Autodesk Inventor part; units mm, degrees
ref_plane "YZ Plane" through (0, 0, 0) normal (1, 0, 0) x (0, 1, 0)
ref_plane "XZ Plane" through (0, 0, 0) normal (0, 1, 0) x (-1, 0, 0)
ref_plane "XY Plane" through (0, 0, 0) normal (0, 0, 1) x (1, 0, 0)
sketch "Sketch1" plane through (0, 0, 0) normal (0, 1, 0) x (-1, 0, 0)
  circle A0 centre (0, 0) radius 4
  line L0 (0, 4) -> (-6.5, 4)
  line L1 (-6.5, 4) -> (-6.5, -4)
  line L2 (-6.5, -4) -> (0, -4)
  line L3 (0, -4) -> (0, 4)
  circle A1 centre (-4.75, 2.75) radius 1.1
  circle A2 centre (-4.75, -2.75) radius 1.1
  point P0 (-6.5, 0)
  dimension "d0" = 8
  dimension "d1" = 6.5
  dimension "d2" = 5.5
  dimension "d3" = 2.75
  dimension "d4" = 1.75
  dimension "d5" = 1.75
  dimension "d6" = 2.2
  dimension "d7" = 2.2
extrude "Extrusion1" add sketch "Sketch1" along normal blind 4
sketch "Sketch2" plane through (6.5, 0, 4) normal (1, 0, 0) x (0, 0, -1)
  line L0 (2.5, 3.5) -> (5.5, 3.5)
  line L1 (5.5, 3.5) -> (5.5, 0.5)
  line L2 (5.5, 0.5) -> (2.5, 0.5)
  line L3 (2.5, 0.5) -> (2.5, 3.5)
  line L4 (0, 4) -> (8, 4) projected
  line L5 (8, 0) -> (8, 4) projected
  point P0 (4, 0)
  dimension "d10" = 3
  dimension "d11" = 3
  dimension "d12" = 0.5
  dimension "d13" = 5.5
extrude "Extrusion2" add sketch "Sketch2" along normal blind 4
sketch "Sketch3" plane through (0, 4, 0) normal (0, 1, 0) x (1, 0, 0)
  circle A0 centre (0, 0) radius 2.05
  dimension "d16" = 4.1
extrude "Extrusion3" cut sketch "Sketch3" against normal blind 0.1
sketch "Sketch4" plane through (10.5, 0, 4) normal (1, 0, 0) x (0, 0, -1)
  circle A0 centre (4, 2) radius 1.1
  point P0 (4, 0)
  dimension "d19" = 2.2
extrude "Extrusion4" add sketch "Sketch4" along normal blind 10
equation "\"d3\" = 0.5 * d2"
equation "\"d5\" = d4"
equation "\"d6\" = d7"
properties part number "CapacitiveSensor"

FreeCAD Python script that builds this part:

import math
import FreeCAD as App
import Part
import Sketcher

V = App.Vector
Q = App.Units.Quantity

doc = App.newDocument("Part")
params = doc.addObject("Spreadsheet::Sheet", "Params")
for row, (alias, value) in enumerate([
    ("sketch1_radius", "4 mm"),
    ("sketch1_diameter", "2.2 mm"),
    ("sketch1_width", "6.5 mm"),
    ("pad1_length", "4 mm"),
    ("sketch2_width", "3 mm"),
    ("pad2_length", "4 mm"),
    ("sketch3_diameter", "4.1 mm"),
    ("pocket1_length", "0.1 mm"),
    ("sketch4_diameter", "2.2 mm"),
    ("pad3_length", "10 mm"),
], start=1):
    params.set(f"A{row}", alias)
    params.set(f"B{row}", "=" + value)
    params.setAlias(f"B{row}", alias)

body = doc.addObject("PartDesign::Body", "Body")

# Sketch on XZ plane
sketch1 = doc.addObject("Sketcher::SketchObject", "Sketch")
body.addObject(sketch1)
sketch1.AttachmentSupport = (doc.XZ_Plane, [""])
sketch1.MapMode = "FlatFace"
sketch1.addGeometry([
    Part.ArcOfCircle(Part.Circle(V(0, 0, 0), V(0, 0, 1), 4), math.radians(90), math.radians(270)),  # 0
    Part.LineSegment(V(0, 4, 0), V(6.5, 4, 0)),  # 1
    Part.LineSegment(V(6.5, 4, 0), V(6.5, -4, 0)),  # 2
    Part.LineSegment(V(6.5, -4, 0), V(0, -4, 0)),  # 3
    Part.Circle(V(4.8, 2.8, 0), V(0, 0, 1), 1.1),  # 4
    Part.Circle(V(4.8, -2.8, 0), V(0, 0, 1), 1.1),  # 5
], False)
sketch1.addConstraint([
    Sketcher.Constraint("Tangent", 0, 1, 1, 1),
    Sketcher.Constraint("Coincident", 1, 2, 2, 1),
    Sketcher.Constraint("Coincident", 2, 2, 3, 1),
    Sketcher.Constraint("Tangent", 3, 2, 0, 2),
    Sketcher.Constraint("Horizontal", 1),
    Sketcher.Constraint("Vertical", 2),
    Sketcher.Constraint("Horizontal", 3),
    Sketcher.Constraint("Coincident", 0, 3, -1, 1),
    Sketcher.Constraint("Equal", 4, 5),
    Sketcher.Constraint("Symmetric", 4, 3, 5, 3, -1),
    Sketcher.Constraint("Radius", 0, Q("4 mm")),
    Sketcher.Constraint("Diameter", 4, Q("2.2 mm")),
    Sketcher.Constraint("DistanceX", 1, 1, 1, 2, Q("6.5 mm")),
    Sketcher.Constraint("DistanceY", 5, 3, 4, 3, Q("5.5 mm")),
    Sketcher.Constraint("DistanceX", 4, 3, 1, 2, Q("1.75 mm")),
])
sketch1.setExpression("Constraints[10]", "Params.sketch1_radius")
sketch1.setExpression("Constraints[11]", "Params.sketch1_diameter")
sketch1.setExpression("Constraints[12]", "Params.sketch1_width")
pad1 = doc.addObject("PartDesign::Pad", "Pad")
body.addObject(pad1)
pad1.Profile = sketch1
pad1.setExpression("Length", "Params.pad1_length")
pad1.Reversed = True

# Sketch on YZ plane
sketch2 = doc.addObject("Sketcher::SketchObject", "Sketch001")
body.addObject(sketch2)
sketch2.AttachmentSupport = (doc.YZ_Plane, [""])
sketch2.MapMode = "FlatFace"
sketch2.AttachmentOffset = App.Placement(V(0, 0, 6.5), App.Rotation())
sketch2.addGeometry([
    Part.LineSegment(V(3.5, -1.5, 0), V(3.5, 1.5, 0)),
    Part.LineSegment(V(3.5, 1.5, 0), V(0.5, 1.5, 0)),
    Part.LineSegment(V(0.5, 1.5, 0), V(0.5, -1.5, 0)),
    Part.LineSegment(V(0.5, -1.5, 0), V(3.5, -1.5, 0)),
], False)
sketch2.addConstraint([
    Sketcher.Constraint("Coincident", 0, 2, 1, 1),
    Sketcher.Constraint("Coincident", 1, 2, 2, 1),
    Sketcher.Constraint("Coincident", 2, 2, 3, 1),
    Sketcher.Constraint("Coincident", 3, 2, 0, 1),
    Sketcher.Constraint("Vertical", 0),
    Sketcher.Constraint("Horizontal", 1),
    Sketcher.Constraint("Vertical", 2),
    Sketcher.Constraint("Horizontal", 3),
    Sketcher.Constraint("Equal", 3, 0),
    Sketcher.Constraint("DistanceX", 1, 2, 1, 1, Q("3 mm")),
    Sketcher.Constraint("DistanceX", -1, 1, 1, 2, Q("0.5 mm")),
    Sketcher.Constraint("DistanceY", -1, 1, 0, 2, Q("1.5 mm")),
])
sketch2.setExpression("Constraints[9]", "Params.sketch2_width")
pad2 = doc.addObject("PartDesign::Pad", "Pad001")
body.addObject(pad2)
pad2.Profile = sketch2
pad2.setExpression("Length", "Params.pad2_length")

# Sketch on XZ plane
sketch3 = doc.addObject("Sketcher::SketchObject", "Sketch002")
body.addObject(sketch3)
sketch3.AttachmentSupport = (doc.XZ_Plane, [""])
sketch3.MapMode = "FlatFace"
sketch3.AttachmentOffset = App.Placement(V(0, 0, -4), App.Rotation())
sketch3.addGeometry(Part.Circle(V(0, 0, 0), V(0, 0, 1), 2), False)
sketch3.addConstraint([
    Sketcher.Constraint("Coincident", 0, 3, -1, 1),
    Sketcher.Constraint("Diameter", 0, Q("4.1 mm")),
])
sketch3.setExpression("Constraints[1]", "Params.sketch3_diameter")
pocket1 = doc.addObject("PartDesign::Pocket", "Pocket")
body.addObject(pocket1)
pocket1.Profile = sketch3
pocket1.setExpression("Length", "Params.pocket1_length")
pocket1.Reversed = True

# Sketch on YZ plane
sketch4 = doc.addObject("Sketcher::SketchObject", "Sketch003")
body.addObject(sketch4)
sketch4.AttachmentSupport = (doc.YZ_Plane, [""])
sketch4.MapMode = "FlatFace"
sketch4.AttachmentOffset = App.Placement(V(0, 0, 10.5), App.Rotation())
sketch4.addGeometry(Part.Circle(V(2, 0, 0), V(0, 0, 1), 1.1), False)
sketch4.addConstraint([
    Sketcher.Constraint("PointOnObject", 0, 3, -1),
    Sketcher.Constraint("Diameter", 0, Q("2.2 mm")),
    Sketcher.Constraint("DistanceX", -1, 1, 0, 3, Q("2 mm")),
])
sketch4.setExpression("Constraints[1]", "Params.sketch4_diameter")
pad3 = doc.addObject("PartDesign::Pad", "Pad002")
body.addObject(pad3)
pad3.Profile = sketch4
pad3.setExpression("Length", "Params.pad3_length")

doc.recompute()
